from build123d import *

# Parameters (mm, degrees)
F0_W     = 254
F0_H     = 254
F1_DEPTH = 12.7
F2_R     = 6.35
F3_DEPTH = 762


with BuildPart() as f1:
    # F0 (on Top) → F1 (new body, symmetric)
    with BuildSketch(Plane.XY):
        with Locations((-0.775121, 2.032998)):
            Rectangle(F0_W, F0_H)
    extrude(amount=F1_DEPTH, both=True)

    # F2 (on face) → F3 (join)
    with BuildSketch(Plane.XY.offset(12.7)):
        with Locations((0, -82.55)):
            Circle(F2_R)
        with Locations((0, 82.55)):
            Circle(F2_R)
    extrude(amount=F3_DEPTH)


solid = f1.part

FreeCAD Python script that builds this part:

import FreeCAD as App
import Part
import Sketcher
from FreeCAD import Vector
Q = App.Units.Quantity


def add_polygon(sketch, points):
    """Adds a closed chain of lines whose ends are joined by coincident constraints."""
    first, n = sketch.GeometryCount, len(points)
    for a, b in zip(points, points[1:] + points[:1]):
        sketch.addGeometry(Part.LineSegment(App.Vector(*a, 0), App.Vector(*b, 0)), False)
    for i in range(n):
        sketch.addConstraint(Sketcher.Constraint("Coincident", first + i, 2, first + (i + 1) % n, 1))

doc = App.newDocument("Part")
body = doc.addObject("PartDesign::Body", "Body")

# Sketch on XY plane
sketch1 = body.newObject("Sketcher::SketchObject", "Sketch")
sketch1.AttachmentSupport = (doc.getObject("XY_Plane"), [""])
sketch1.MapMode = "FlatFace"
add_polygon(sketch1, [(-128, 129), (-128, -125), (126, -125), (126, 129)])  # lines 0-3
sketch1.addConstraint([
    Sketcher.Constraint("Vertical", 0),
    Sketcher.Constraint("Horizontal", 1),
    Sketcher.Constraint("Vertical", 2),
    Sketcher.Constraint("Horizontal", 3),
    Sketcher.Constraint("Equal", 3, 0),
    Sketcher.Constraint("DistanceX", 1, 1, 1, 2, Q("10 in")),
    Sketcher.Constraint("DistanceY", 0, 2, -1, 1, 124.967002),
    Sketcher.Constraint("DistanceX", 0, 2, -1, 1, 127.775121),
])
pad1 = body.newObject("PartDesign::Pad", "Pad")
pad1.Profile = sketch1
pad1.Length = Q("1 in")
pad1.Midplane = True

# Sketch on XY plane
sketch2 = body.newObject("Sketcher::SketchObject", "Sketch001")
sketch2.AttachmentSupport = (doc.getObject("XY_Plane"), [""])
sketch2.MapMode = "FlatFace"
sketch2.AttachmentOffset = App.Placement(Vector(0, 0, 0.5 * 25.4), App.Rotation())
sketch2.addGeometry([
    Part.Circle(Vector(0, -83, 0), Vector(0, 0, 1), 6),
    Part.Circle(Vector(0, 83, 0), Vector(0, 0, 1), 6),
], False)
sketch2.addConstraint([
    Sketcher.Constraint("Equal", 0, 1),
    Sketcher.Constraint("Symmetric", 0, 3, 1, 3, -1, 1),
    Sketcher.Constraint("PointOnObject", 0, 3, -2),
    Sketcher.Constraint("Diameter", 0, Q("0.5 in")),
    Sketcher.Constraint("DistanceY", 0, 3, 1, 3, Q("6.5 in")),
])
pad2 = body.newObject("PartDesign::Pad", "Pad001")
pad2.Profile = sketch2
pad2.Length = Q("30 in")

doc.recompute()
